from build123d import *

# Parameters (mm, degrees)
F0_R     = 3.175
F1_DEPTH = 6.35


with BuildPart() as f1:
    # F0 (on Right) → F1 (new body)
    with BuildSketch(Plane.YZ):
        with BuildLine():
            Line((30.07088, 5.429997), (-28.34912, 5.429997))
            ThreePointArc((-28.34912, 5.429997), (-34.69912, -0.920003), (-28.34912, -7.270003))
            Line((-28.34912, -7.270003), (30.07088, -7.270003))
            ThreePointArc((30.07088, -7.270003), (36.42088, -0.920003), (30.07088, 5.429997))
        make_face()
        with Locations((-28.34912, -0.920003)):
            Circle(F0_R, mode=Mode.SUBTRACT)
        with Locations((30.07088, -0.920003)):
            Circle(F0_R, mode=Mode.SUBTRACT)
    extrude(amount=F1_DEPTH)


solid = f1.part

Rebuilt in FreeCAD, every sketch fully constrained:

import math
import FreeCAD as App
import Part
import Sketcher
from FreeCAD import Vector
Q = App.Units.Quantity

doc = App.newDocument("Part")
body = doc.addObject("PartDesign::Body", "Body")

# Sketch on YZ plane
sketch1 = doc.addObject("Sketcher::SketchObject", "Sketch")
body.addObject(sketch1)
sketch1.AttachmentSupport = (doc.YZ_Plane, [""])
sketch1.MapMode = "FlatFace"
sketch1.addGeometry([
    Part.LineSegment(Vector(30.07088, 5.429997, 0), Vector(-28.34912, 5.429997, 0)),  # 0
    Part.ArcOfCircle(Part.Circle(Vector(-28.34912, -0.920003, 0), Vector(0, 0, 1), 6.35), math.radians(90), math.radians(270)),  # 1
    Part.LineSegment(Vector(-28.34912, -7.270003, 0), Vector(30.07088, -7.270003, 0)),  # 2
    Part.ArcOfCircle(Part.Circle(Vector(30.07088, -0.920003, 0), Vector(0, 0, 1), 6.35), math.radians(-90), math.radians(90)),  # 3
    Part.Circle(Vector(-28.34912, -0.920003, 0), Vector(0, 0, 1), 3.175),  # 4
    Part.Circle(Vector(30.07088, -0.920003, 0), Vector(0, 0, 1), 3.175),  # 5
], False)
sketch1.addConstraint([
    Sketcher.Constraint("Tangent", 0, 2, 1, 1),
    Sketcher.Constraint("Tangent", 1, 2, 2, 1),
    Sketcher.Constraint("Tangent", 2, 2, 3, 1),
    Sketcher.Constraint("Tangent", 3, 2, 0, 1),
    Sketcher.Constraint("Horizontal", 0),
    Sketcher.Constraint("Horizontal", 2),
    Sketcher.Constraint("Coincident", 4, 3, 1, 3),
    Sketcher.Constraint("Coincident", 5, 3, 3, 3),
    Sketcher.Constraint("Equal", 4, 5),
    Sketcher.Constraint("Diameter", 4, Q("0.25 in")),
    Sketcher.Constraint("Radius", 1, Q("0.25 in")),
    Sketcher.Constraint("DistanceX", 0, 2, 0, 1, Q("2.3 in")),
    Sketcher.Constraint("DistanceX", 1, 3, -1, 1, 28.34912),
    Sketcher.Constraint("DistanceY", 1, 3, -1, 1, 0.920003),
])
pad1 = doc.addObject("PartDesign::Pad", "Pad")
body.addObject(pad1)
pad1.Profile = sketch1
pad1.Length = Q("0.25 in")

doc.recompute()
